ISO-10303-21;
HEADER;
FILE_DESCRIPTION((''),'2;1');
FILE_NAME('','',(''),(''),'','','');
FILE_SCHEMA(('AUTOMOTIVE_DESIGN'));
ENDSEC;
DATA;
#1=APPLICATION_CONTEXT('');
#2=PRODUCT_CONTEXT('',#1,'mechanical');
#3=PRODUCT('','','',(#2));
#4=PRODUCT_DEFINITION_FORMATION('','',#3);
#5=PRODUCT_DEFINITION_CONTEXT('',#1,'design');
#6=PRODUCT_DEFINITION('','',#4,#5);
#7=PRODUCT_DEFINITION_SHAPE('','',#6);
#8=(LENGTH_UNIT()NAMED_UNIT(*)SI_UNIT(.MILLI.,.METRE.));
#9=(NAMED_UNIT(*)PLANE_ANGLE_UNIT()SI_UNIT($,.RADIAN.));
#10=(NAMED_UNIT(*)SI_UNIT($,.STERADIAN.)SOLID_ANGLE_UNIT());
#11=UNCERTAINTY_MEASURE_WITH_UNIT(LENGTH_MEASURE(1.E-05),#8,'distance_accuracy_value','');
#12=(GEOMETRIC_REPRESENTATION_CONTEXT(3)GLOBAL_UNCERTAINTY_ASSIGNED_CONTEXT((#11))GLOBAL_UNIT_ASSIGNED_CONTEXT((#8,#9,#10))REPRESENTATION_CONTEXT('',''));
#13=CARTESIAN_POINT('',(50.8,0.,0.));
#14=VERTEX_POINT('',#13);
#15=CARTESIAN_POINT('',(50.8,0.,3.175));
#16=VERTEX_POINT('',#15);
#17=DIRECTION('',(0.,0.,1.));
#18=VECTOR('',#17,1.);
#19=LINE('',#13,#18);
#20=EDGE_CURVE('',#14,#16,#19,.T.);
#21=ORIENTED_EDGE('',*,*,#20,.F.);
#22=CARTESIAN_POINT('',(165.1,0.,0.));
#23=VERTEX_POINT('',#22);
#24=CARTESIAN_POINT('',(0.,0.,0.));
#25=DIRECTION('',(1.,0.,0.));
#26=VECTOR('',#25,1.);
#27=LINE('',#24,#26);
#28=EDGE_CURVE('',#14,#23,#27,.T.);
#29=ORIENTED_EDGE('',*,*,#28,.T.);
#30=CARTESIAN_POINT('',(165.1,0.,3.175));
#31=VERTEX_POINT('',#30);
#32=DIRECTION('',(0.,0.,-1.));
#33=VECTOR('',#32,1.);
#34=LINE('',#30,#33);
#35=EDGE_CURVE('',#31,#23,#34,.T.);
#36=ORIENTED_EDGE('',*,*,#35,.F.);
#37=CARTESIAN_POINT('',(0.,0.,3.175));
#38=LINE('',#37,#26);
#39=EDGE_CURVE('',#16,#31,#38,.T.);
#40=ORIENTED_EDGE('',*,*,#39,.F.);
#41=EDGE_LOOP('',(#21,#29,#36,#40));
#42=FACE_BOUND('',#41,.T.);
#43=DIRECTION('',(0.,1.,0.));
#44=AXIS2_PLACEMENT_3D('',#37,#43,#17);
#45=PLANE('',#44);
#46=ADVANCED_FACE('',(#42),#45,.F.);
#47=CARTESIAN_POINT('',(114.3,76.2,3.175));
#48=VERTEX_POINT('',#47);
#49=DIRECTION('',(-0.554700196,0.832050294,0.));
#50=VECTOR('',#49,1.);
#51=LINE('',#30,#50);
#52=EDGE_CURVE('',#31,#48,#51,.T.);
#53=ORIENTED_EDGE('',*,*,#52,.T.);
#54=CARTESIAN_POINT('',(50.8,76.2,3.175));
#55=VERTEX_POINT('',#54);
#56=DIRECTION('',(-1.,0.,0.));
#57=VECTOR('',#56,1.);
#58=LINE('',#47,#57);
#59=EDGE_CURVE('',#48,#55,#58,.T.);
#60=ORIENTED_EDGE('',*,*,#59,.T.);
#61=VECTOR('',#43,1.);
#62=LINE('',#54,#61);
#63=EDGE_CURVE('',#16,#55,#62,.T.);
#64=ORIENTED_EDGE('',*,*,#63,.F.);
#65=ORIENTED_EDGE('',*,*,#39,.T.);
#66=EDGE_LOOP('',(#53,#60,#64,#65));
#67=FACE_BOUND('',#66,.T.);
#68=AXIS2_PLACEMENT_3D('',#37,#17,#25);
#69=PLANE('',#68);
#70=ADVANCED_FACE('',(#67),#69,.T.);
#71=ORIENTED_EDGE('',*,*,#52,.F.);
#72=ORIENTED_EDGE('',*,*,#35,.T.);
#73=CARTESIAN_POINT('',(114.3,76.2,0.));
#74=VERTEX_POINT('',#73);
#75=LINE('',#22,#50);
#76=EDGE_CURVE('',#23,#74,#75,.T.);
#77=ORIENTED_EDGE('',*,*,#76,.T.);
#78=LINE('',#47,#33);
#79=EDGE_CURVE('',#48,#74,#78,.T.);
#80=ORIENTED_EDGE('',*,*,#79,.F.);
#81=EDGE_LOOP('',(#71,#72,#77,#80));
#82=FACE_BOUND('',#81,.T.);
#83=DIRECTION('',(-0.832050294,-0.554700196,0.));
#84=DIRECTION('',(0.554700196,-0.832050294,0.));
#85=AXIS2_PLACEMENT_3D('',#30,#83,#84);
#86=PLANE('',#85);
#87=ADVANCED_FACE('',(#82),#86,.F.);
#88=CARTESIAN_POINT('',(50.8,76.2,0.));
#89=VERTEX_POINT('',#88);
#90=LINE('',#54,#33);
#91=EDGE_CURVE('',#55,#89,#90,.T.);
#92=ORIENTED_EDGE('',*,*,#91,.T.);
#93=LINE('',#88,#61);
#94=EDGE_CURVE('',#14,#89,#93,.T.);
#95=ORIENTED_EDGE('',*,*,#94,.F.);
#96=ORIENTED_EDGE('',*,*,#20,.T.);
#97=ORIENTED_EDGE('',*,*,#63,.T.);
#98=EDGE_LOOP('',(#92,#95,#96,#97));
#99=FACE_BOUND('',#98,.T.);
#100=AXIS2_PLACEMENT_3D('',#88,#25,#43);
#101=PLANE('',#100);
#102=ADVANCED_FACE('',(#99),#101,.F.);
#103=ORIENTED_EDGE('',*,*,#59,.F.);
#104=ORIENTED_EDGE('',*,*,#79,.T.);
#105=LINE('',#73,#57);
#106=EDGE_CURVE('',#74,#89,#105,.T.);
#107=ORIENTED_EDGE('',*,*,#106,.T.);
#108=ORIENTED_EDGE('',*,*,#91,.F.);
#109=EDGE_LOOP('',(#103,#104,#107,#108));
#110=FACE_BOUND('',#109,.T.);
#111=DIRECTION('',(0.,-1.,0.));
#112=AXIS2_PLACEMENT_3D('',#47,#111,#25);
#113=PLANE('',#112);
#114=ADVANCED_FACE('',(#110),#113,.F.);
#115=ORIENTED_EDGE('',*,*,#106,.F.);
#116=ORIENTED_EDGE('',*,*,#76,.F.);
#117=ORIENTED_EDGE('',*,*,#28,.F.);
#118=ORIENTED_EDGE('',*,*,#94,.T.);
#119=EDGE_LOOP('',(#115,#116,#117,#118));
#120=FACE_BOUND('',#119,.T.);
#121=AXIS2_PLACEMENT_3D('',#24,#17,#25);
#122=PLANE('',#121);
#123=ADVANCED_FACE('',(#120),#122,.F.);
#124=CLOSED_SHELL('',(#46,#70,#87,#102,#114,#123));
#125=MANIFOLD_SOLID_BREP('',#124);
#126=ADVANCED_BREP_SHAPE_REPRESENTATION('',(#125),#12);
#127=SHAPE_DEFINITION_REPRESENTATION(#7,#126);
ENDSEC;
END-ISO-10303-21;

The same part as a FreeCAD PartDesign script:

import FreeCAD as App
import Part
import Sketcher
from FreeCAD import Vector
Q = App.Units.Quantity

doc = App.newDocument("Part")
body = doc.addObject("PartDesign::Body", "Body")

# Sketch on XY plane
sketch1 = body.newObject("Sketcher::SketchObject", "Sketch")
sketch1.AttachmentSupport = (doc.getObject("XY_Plane"), [""])
sketch1.MapMode = "FlatFace"
sketch1.addGeometry(Part.LineSegment(Vector(0, 0, 0), Vector(165.1, 0, 0)), False)
sketch1.addGeometry(Part.LineSegment(Vector(165.1, 0, 0), Vector(114.3, 76.2, 0)), False)
sketch1.addGeometry(Part.LineSegment(Vector(114.3, 76.2, 0), Vector(50.8, 76.2, 0)), False)
sketch1.addGeometry(Part.LineSegment(Vector(50.8, 76.2, 0), Vector(0, 0, 0)), False)
sketch1.addConstraint(Sketcher.Constraint("Coincident", 0, 2, 1, 1))
sketch1.addConstraint(Sketcher.Constraint("Coincident", 1, 2, 2, 1))
sketch1.addConstraint(Sketcher.Constraint("Coincident", 2, 2, 3, 1))
sketch1.addConstraint(Sketcher.Constraint("Coincident", 3, 2, 0, 1))
sketch1.addConstraint(Sketcher.Constraint("Horizontal", 0))
sketch1.addConstraint(Sketcher.Constraint("Horizontal", 2))
sketch1.addConstraint(Sketcher.Constraint("Coincident", 3, 2, -1, 1))
sketch1.addConstraint(Sketcher.Constraint("Equal", 1, 3))
sketch1.addConstraint(Sketcher.Constraint("DistanceX", 0, 1, 0, 2, Q("6.5 in")))
sketch1.addConstraint(Sketcher.Constraint("DistanceX", 2, 2, 2, 1, Q("2.5 in")))
sketch1.addConstraint(Sketcher.Constraint("DistanceY", -1, 1, 1, 2, Q("3 in")))
pad1 = body.newObject("PartDesign::Pad", "Pad")
pad1.Profile = sketch1
pad1.Length = Q("0.125 in")

# Sketch on XY plane
sketch2 = body.newObject("Sketcher::SketchObject", "Sketch001")
sketch2.AttachmentSupport = (doc.getObject("XY_Plane"), [""])
sketch2.MapMode = "FlatFace"
sketch2.AttachmentOffset = App.Placement(Vector(0, 0, 0.125 * 25.4), App.Rotation())
sketch2.addGeometry(Part.LineSegment(Vector(50.8, 0, 0), Vector(50.8, 76.2, 0)), False)
sketch2.addGeometry(Part.LineSegment(Vector(50.8, 76.2, 0), Vector(0, 0, 0)), False)
sketch2.addGeometry(Part.LineSegment(Vector(0, 0, 0), Vector(50.8, 0, 0)), False)
sketch2.addConstraint(Sketcher.Constraint("Coincident", 0, 2, 1, 1))
sketch2.addConstraint(Sketcher.Constraint("Coincident", 1, 2, 2, 1))
sketch2.addConstraint(Sketcher.Constraint("Coincident", 2, 2, 0, 1))
sketch2.addConstraint(Sketcher.Constraint("Vertical", 0))
sketch2.addConstraint(Sketcher.Constraint("Horizontal", 2))
sketch2.addConstraint(Sketcher.Constraint("Coincident", 1, 2, -1, 1))
sketch2.addConstraint(Sketcher.Constraint("DistanceX", 2, 1, 2, 2, Q("2 in")))
sketch2.addConstraint(Sketcher.Constraint("DistanceY", 0, 1, 0, 2, Q("3 in")))
pocket1 = body.newObject("PartDesign::Pocket", "Pocket")
pocket1.Profile = sketch2
pocket1.Length = Q("0.125 in")

doc.recompute()
